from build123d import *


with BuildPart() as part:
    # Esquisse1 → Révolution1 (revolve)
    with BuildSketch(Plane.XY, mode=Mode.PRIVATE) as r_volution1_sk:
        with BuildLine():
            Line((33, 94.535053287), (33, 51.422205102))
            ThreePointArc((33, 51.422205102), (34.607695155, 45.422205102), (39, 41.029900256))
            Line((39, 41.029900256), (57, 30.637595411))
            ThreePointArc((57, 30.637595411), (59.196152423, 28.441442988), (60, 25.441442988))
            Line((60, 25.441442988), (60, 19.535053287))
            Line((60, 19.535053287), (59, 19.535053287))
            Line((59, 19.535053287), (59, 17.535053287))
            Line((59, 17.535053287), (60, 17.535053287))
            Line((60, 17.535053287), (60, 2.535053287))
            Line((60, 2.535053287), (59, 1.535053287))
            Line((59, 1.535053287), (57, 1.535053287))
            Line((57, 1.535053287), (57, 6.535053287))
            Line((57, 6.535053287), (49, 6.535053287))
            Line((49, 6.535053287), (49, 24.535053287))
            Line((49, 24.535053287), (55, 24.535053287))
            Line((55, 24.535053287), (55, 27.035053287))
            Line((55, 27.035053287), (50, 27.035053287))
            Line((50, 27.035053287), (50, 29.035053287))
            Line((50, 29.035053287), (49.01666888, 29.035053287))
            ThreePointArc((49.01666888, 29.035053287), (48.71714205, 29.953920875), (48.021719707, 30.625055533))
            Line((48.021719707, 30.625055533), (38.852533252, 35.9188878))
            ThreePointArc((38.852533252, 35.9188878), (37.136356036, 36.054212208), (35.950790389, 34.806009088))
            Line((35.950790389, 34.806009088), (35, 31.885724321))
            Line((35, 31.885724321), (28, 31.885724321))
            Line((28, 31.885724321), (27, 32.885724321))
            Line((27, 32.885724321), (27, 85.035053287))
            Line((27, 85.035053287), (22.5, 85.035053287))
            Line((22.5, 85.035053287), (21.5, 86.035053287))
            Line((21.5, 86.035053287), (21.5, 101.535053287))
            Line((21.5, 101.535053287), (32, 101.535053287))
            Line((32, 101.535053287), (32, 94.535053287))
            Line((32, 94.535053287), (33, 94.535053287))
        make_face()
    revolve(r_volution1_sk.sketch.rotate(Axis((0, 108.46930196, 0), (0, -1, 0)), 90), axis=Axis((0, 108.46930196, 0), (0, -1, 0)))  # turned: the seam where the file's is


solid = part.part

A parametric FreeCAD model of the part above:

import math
import FreeCAD as App
import Part
import Sketcher

V = App.Vector
Q = App.Units.Quantity

doc = App.newDocument("Part")
body = doc.addObject("PartDesign::Body", "Body")

# Sketch on XY plane
sketch1 = body.newObject("Sketcher::SketchObject", "Sketch")
sketch1.AttachmentSupport = (doc.getObject("XY_Plane"), [""])
sketch1.MapMode = "FlatFace"
sketch1.addGeometry(Part.LineSegment(V(33, 51.4, 0), V(33, 94.5, 0)), False)
sketch1.addGeometry(Part.LineSegment(V(33, 94.5, 0), V(32, 94.5, 0)), False)
sketch1.addGeometry(Part.LineSegment(V(32, 94.5, 0), V(32, 101.5, 0)), False)
sketch1.addGeometry(Part.LineSegment(V(32, 101.5, 0), V(21.5, 101.5, 0)), False)
sketch1.addGeometry(Part.LineSegment(V(21.5, 101.5, 0), V(21.5, 86, 0)), False)
sketch1.addGeometry(Part.LineSegment(V(21.5, 86, 0), V(22.5, 85, 0)), False)
sketch1.addGeometry(Part.LineSegment(V(22.5, 85, 0), V(27, 85, 0)), False)
sketch1.addGeometry(Part.LineSegment(V(27, 85, 0), V(27, 32.9, 0)), False)
sketch1.addGeometry(Part.LineSegment(V(27, 32.9, 0), V(28, 31.9, 0)), False)
sketch1.addGeometry(Part.LineSegment(V(28, 31.9, 0), V(35, 31.9, 0)), False)
sketch1.addGeometry(Part.LineSegment(V(35, 31.9, 0), V(36, 34.8, 0)), False)
sketch1.addGeometry(Part.ArcOfCircle(Part.Circle(V(37.9, 34.2, 0), V(0, 0, 1), 2), math.radians(60), math.radians(162)), False)
sketch1.addGeometry(Part.LineSegment(V(38.9, 35.9, 0), V(48, 30.6, 0)), False)
sketch1.addGeometry(Part.ArcOfCircle(Part.Circle(V(47, 28.9, 0), V(0, 0, 1), 2), math.radians(4), math.radians(60)), False)
sketch1.addGeometry(Part.LineSegment(V(49, 29, 0), V(50, 29, 0)), False)
sketch1.addGeometry(Part.LineSegment(V(50, 29, 0), V(50, 27, 0)), False)
sketch1.addGeometry(Part.LineSegment(V(50, 27, 0), V(55, 27, 0)), False)
sketch1.addGeometry(Part.LineSegment(V(55, 27, 0), V(55, 24.5, 0)), False)
sketch1.addGeometry(Part.LineSegment(V(55, 24.5, 0), V(49, 24.5, 0)), False)
sketch1.addGeometry(Part.LineSegment(V(49, 24.5, 0), V(49, 6.5, 0)), False)
sketch1.addGeometry(Part.LineSegment(V(49, 6.5, 0), V(57, 6.5, 0)), False)
sketch1.addGeometry(Part.LineSegment(V(57, 6.5, 0), V(57, 1.5, 0)), False)
sketch1.addGeometry(Part.LineSegment(V(57, 1.5, 0), V(59, 1.5, 0)), False)
sketch1.addGeometry(Part.LineSegment(V(59, 1.5, 0), V(60, 2.5, 0)), False)
sketch1.addGeometry(Part.LineSegment(V(60, 2.5, 0), V(60, 17.5, 0)), False)
sketch1.addGeometry(Part.LineSegment(V(60, 17.5, 0), V(59, 17.5, 0)), False)
sketch1.addGeometry(Part.LineSegment(V(59, 17.5, 0), V(59, 19.5, 0)), False)
sketch1.addGeometry(Part.LineSegment(V(59, 19.5, 0), V(60, 19.5, 0)), False)
sketch1.addGeometry(Part.LineSegment(V(60, 19.5, 0), V(60, 25.4, 0)), False)
sketch1.addGeometry(Part.ArcOfCircle(Part.Circle(V(54, 25.4, 0), V(0, 0, 1), 6), math.radians(0), math.radians(60)), False)
sketch1.addGeometry(Part.LineSegment(V(57, 30.6, 0), V(39, 41, 0)), False)
sketch1.addGeometry(Part.ArcOfCircle(Part.Circle(V(45, 51.4, 0), V(0, 0, 1), 12), math.radians(-180), math.radians(-120)), False)
sketch1.addConstraint(Sketcher.Constraint("Coincident", 0, 2, 1, 1))
sketch1.addConstraint(Sketcher.Constraint("Coincident", 1, 2, 2, 1))
sketch1.addConstraint(Sketcher.Constraint("Coincident", 2, 2, 3, 1))
sketch1.addConstraint(Sketcher.Constraint("Coincident", 3, 2, 4, 1))
sketch1.addConstraint(Sketcher.Constraint("Coincident", 4, 2, 5, 1))
sketch1.addConstraint(Sketcher.Constraint("Coincident", 5, 2, 6, 1))
sketch1.addConstraint(Sketcher.Constraint("Coincident", 6, 2, 7, 1))
sketch1.addConstraint(Sketcher.Constraint("Coincident", 7, 2, 8, 1))
sketch1.addConstraint(Sketcher.Constraint("Coincident", 8, 2, 9, 1))
sketch1.addConstraint(Sketcher.Constraint("Coincident", 9, 2, 10, 1))
sketch1.addConstraint(Sketcher.Constraint("Tangent", 10, 2, 11, 2))
sketch1.addConstraint(Sketcher.Constraint("Tangent", 11, 1, 12, 1))
sketch1.addConstraint(Sketcher.Constraint("Tangent", 12, 2, 13, 2))
sketch1.addConstraint(Sketcher.Constraint("Coincident", 13, 1, 14, 1))
sketch1.addConstraint(Sketcher.Constraint("Coincident", 14, 2, 15, 1))
sketch1.addConstraint(Sketcher.Constraint("Coincident", 15, 2, 16, 1))
sketch1.addConstraint(Sketcher.Constraint("Coincident", 16, 2, 17, 1))
sketch1.addConstraint(Sketcher.Constraint("Coincident", 17, 2, 18, 1))
sketch1.addConstraint(Sketcher.Constraint("Coincident", 18, 2, 19, 1))
sketch1.addConstraint(Sketcher.Constraint("Coincident", 19, 2, 20, 1))
sketch1.addConstraint(Sketcher.Constraint("Coincident", 20, 2, 21, 1))
sketch1.addConstraint(Sketcher.Constraint("Coincident", 21, 2, 22, 1))
sketch1.addConstraint(Sketcher.Constraint("Coincident", 22, 2, 23, 1))
sketch1.addConstraint(Sketcher.Constraint("Coincident", 23, 2, 24, 1))
sketch1.addConstraint(Sketcher.Constraint("Coincident", 24, 2, 25, 1))
sketch1.addConstraint(Sketcher.Constraint("Coincident", 25, 2, 26, 1))
sketch1.addConstraint(Sketcher.Constraint("Coincident", 26, 2, 27, 1))
sketch1.addConstraint(Sketcher.Constraint("Coincident", 27, 2, 28, 1))
sketch1.addConstraint(Sketcher.Constraint("Tangent", 28, 2, 29, 1))
sketch1.addConstraint(Sketcher.Constraint("Tangent", 29, 2, 30, 1))
sketch1.addConstraint(Sketcher.Constraint("Tangent", 30, 2, 31, 2))
sketch1.addConstraint(Sketcher.Constraint("Tangent", 31, 1, 0, 1))
sketch1.addConstraint(Sketcher.Constraint("Vertical", 0))
sketch1.addConstraint(Sketcher.Constraint("Horizontal", 1))
sketch1.addConstraint(Sketcher.Constraint("Vertical", 2))
sketch1.addConstraint(Sketcher.Constraint("Horizontal", 3))
sketch1.addConstraint(Sketcher.Constraint("Vertical", 4))
sketch1.addConstraint(Sketcher.Constraint("Horizontal", 6))
sketch1.addConstraint(Sketcher.Constraint("Vertical", 7))
sketch1.addConstraint(Sketcher.Constraint("Horizontal", 9))
sketch1.addConstraint(Sketcher.Constraint("Horizontal", 14))
sketch1.addConstraint(Sketcher.Constraint("Vertical", 15))
sketch1.addConstraint(Sketcher.Constraint("Horizontal", 16))
sketch1.addConstraint(Sketcher.Constraint("Vertical", 17))
sketch1.addConstraint(Sketcher.Constraint("Horizontal", 18))
sketch1.addConstraint(Sketcher.Constraint("Vertical", 19))
sketch1.addConstraint(Sketcher.Constraint("Horizontal", 20))
sketch1.addConstraint(Sketcher.Constraint("Vertical", 21))
sketch1.addConstraint(Sketcher.Constraint("Horizontal", 22))
sketch1.addConstraint(Sketcher.Constraint("Vertical", 24))
sketch1.addConstraint(Sketcher.Constraint("Horizontal", 25))
sketch1.addConstraint(Sketcher.Constraint("Vertical", 26))
sketch1.addConstraint(Sketcher.Constraint("Horizontal", 27))
sketch1.addConstraint(Sketcher.Constraint("Vertical", 28))
sketch1.addConstraint(Sketcher.Constraint("Equal", 11, 13))
sketch1.addConstraint(Sketcher.Constraint("Parallel", 5, 8))
sketch1.addConstraint(Sketcher.Constraint("Perpendicular", 8, 23))
sketch1.addConstraint(Sketcher.Constraint("Parallel", 12, 30))
sketch1.addConstraint(Sketcher.Constraint("Vertical", 22, 2, 25, 2))
sketch1.addConstraint(Sketcher.Constraint("Vertical", 24, 2, 27, 2))
sketch1.addConstraint(Sketcher.Constraint("Vertical", 21, 2, 29, 2))
sketch1.addConstraint(Sketcher.Constraint("Equal", 1, 25))
sketch1.addConstraint(Sketcher.Constraint("Equal", 9, 2))
sketch1.addConstraint(Sketcher.Constraint("Equal", 22, 15))
sketch1.addConstraint(Sketcher.Constraint("Equal", 16, 21))
sketch1.addConstraint(Sketcher.Constraint("Equal", 15, 26))
sketch1.addConstraint(Sketcher.Constraint("Equal", 5, 8))
sketch1.addConstraint(Sketcher.Constraint("Equal", 8, 23))
sketch1.addConstraint(Sketcher.Constraint("Radius", 11, 2.0))
sketch1.addConstraint(Sketcher.Constraint("Radius", 29, 6.0))
sketch1.addConstraint(Sketcher.Constraint("Radius", 31, 12.0))
sketch1.addConstraint(Sketcher.Constraint("DistanceX", 1, 2, 1, 1, 1.0))
sketch1.addConstraint(Sketcher.Constraint("DistanceX", 9, 1, 9, 2, 7.0))
sketch1.addConstraint(Sketcher.Constraint("DistanceX", 16, 1, 16, 2, 5.0))
sketch1.addConstraint(Sketcher.Constraint("DistanceX", 18, 2, 18, 1, 6.0))
sketch1.addConstraint(Sketcher.Constraint("DistanceX", 20, 1, 20, 2, 8.0))
sketch1.addConstraint(Sketcher.Constraint("DistanceX", 22, 1, 22, 2, 2.0))
sketch1.addConstraint(Sketcher.Constraint("DistanceY", 19, 2, 19, 1, 18.0))
sketch1.addConstraint(Sketcher.Constraint("DistanceY", 24, 1, 24, 2, 15.0))
sketch1.addConstraint(Sketcher.Constraint("Angle", 5, Q("-45 deg")))
sketch1.addConstraint(Sketcher.Constraint("DistanceX", 3, 2, 3, 1, 10.5))
sketch1.addConstraint(Sketcher.Constraint("DistanceX", 6, 1, 6, 2, 4.5))
sketch1.addConstraint(Sketcher.Constraint("DistanceY", 4, 2, 4, 1, 15.5))
sketch1.addConstraint(Sketcher.Constraint("DistanceY", 17, 2, 17, 1, 2.5))
sketch1.addConstraint(Sketcher.Constraint("DistanceX", -1, 1, 29, 3, 54.0))
sketch1.addConstraint(Sketcher.Constraint("DistanceX", -1, 1, 31, 3, 45.0))
sketch1.addConstraint(Sketcher.Constraint("DistanceX", 14, 1, 14, 2, 0.983331))
sketch1.addConstraint(Sketcher.Constraint("DistanceY", 0, 1, 0, 2, 43.112848))
sketch1.addConstraint(Sketcher.Constraint("DistanceY", 7, 2, 7, 1, 52.149329))
sketch1.addConstraint(Sketcher.Constraint("DistanceY", 28, 1, 28, 2, 5.90639))
sketch1.addConstraint(Sketcher.Constraint("DistanceY", -1, 1, 30, 2, 41.0299))
sketch1.addConstraint(Sketcher.Constraint("DistanceY", 13, 3, 31, 3, 22.5292))
sketch1.addConstraint(Sketcher.Constraint("DistanceX", -1, 1, 10, 2, 35.95079))
revolution = body.newObject("PartDesign::Revolution", "Revolution")
revolution.Profile = sketch1
revolution.ReferenceAxis = (sketch1, ["V_Axis"])
revolution.Angle = 360

doc.recompute()
